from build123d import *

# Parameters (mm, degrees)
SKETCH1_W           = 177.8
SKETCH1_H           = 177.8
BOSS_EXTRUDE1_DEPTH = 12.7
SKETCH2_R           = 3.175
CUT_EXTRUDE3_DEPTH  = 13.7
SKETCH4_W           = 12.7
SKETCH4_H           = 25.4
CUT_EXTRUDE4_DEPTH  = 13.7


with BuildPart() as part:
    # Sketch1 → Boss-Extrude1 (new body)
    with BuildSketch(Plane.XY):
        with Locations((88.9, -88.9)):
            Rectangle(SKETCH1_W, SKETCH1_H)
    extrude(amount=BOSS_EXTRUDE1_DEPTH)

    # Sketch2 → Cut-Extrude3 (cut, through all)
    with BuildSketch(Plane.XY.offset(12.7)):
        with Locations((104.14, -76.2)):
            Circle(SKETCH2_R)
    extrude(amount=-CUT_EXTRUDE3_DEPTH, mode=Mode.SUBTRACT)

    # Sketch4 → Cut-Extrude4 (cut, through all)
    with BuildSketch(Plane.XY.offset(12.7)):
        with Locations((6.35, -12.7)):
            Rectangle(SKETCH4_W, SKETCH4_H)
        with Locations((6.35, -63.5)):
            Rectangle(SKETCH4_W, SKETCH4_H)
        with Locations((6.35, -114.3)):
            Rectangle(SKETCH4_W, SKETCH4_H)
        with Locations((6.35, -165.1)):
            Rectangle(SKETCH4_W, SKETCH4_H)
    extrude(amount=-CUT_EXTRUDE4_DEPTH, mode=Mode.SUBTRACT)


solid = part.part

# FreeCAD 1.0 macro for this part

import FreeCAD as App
import Part
import Sketcher

V = App.Vector
Q = App.Units.Quantity

doc = App.newDocument("Part")
body = doc.addObject("PartDesign::Body", "Body")

sketch1 = doc.addObject("Sketcher::SketchObject", "Sketch")
body.addObject(sketch1)
sketch1.AttachmentSupport = (doc.XY_Plane, [""])
sketch1.MapMode = "FlatFace"
sketch1.addGeometry([
    Part.LineSegment(V(0, 0, 0), V(0, -178, 0)),
    Part.LineSegment(V(0, -178, 0), V(178, -178, 0)),
    Part.LineSegment(V(178, -178, 0), V(178, 0, 0)),
    Part.LineSegment(V(178, 0, 0), V(0, 0, 0)),
], False)
sketch1.addConstraint([
    Sketcher.Constraint("Coincident", 0, 2, 1, 1),
    Sketcher.Constraint("Coincident", 1, 2, 2, 1),
    Sketcher.Constraint("Coincident", 2, 2, 3, 1),
    Sketcher.Constraint("Coincident", 3, 2, 0, 1),
    Sketcher.Constraint("Vertical", 0),
    Sketcher.Constraint("Horizontal", 1),
    Sketcher.Constraint("Vertical", 2),
    Sketcher.Constraint("Horizontal", 3),
    Sketcher.Constraint("Coincident", 3, 2, -1, 1),
    Sketcher.Constraint("Equal", 3, 0),
    Sketcher.Constraint("DistanceX", 1, 1, 1, 2, Q("7 in")),
])
pad1 = doc.addObject("PartDesign::Pad", "Pad")
body.addObject(pad1)
pad1.Profile = sketch1
pad1.Length = Q("0.5 in")

sketch2 = doc.addObject("Sketcher::SketchObject", "Sketch001")
body.addObject(sketch2)
sketch2.AttachmentSupport = (doc.XY_Plane, [""])
sketch2.MapMode = "FlatFace"
sketch2.AttachmentOffset = App.Placement(V(0, 0, 0.5 * 25.4), App.Rotation())
sketch2.addGeometry(Part.Circle(V(104.1, -76.2, 0), V(0, 0, 1), 3.2), False)
sketch2.addConstraint([
    Sketcher.Constraint("Diameter", 0, Q("0.25 in")),
    Sketcher.Constraint("DistanceY", 0, 3, -1, 1, Q("3 in")),
    Sketcher.Constraint("DistanceX", -1, 1, 0, 3, Q("4.1 in")),
])
pocket1 = doc.addObject("PartDesign::Pocket", "Pocket")
body.addObject(pocket1)
pocket1.Profile = sketch2
pocket1.Type = "ThroughAll"

sketch3 = doc.addObject("Sketcher::SketchObject", "Sketch002")
body.addObject(sketch3)
sketch3.AttachmentSupport = (doc.XY_Plane, [""])
sketch3.MapMode = "FlatFace"
sketch3.AttachmentOffset = App.Placement(V(0, 0, 0.5 * 25.4), App.Rotation())
sketch3.addGeometry([
    Part.LineSegment(V(0, 0, 0), V(0, -25, 0)),
    Part.LineSegment(V(0, -25, 0), V(13, -25, 0)),
    Part.LineSegment(V(13, -25, 0), V(13, 0, 0)),
    Part.LineSegment(V(13, 0, 0), V(0, 0, 0)),
    Part.LineSegment(V(0, -51, 0), V(0, -76, 0)),
    Part.LineSegment(V(0, -76, 0), V(13, -76, 0)),
    Part.LineSegment(V(13, -76, 0), V(13, -51, 0)),
    Part.LineSegment(V(13, -51, 0), V(0, -51, 0)),
    Part.LineSegment(V(0, -102, 0), V(0, -127, 0)),
    Part.LineSegment(V(0, -127, 0), V(13, -127, 0)),
    Part.LineSegment(V(13, -127, 0), V(13, -102, 0)),
    Part.LineSegment(V(13, -102, 0), V(0, -102, 0)),
    Part.LineSegment(V(0, -152, 0), V(0, -178, 0)),
    Part.LineSegment(V(0, -178, 0), V(13, -178, 0)),
    Part.LineSegment(V(13, -178, 0), V(13, -152, 0)),
    Part.LineSegment(V(13, -152, 0), V(0, -152, 0)),
], False)
sketch3.addConstraint([
    Sketcher.Constraint("Coincident", 0, 2, 1, 1),
    Sketcher.Constraint("Coincident", 1, 2, 2, 1),
    Sketcher.Constraint("Coincident", 2, 2, 3, 1),
    Sketcher.Constraint("Coincident", 3, 2, 0, 1),
    Sketcher.Constraint("Coincident", 4, 2, 5, 1),
    Sketcher.Constraint("Coincident", 5, 2, 6, 1),
    Sketcher.Constraint("Coincident", 6, 2, 7, 1),
    Sketcher.Constraint("Coincident", 7, 2, 4, 1),
    Sketcher.Constraint("Coincident", 8, 2, 9, 1),
    Sketcher.Constraint("Coincident", 9, 2, 10, 1),
    Sketcher.Constraint("Coincident", 10, 2, 11, 1),
    Sketcher.Constraint("Coincident", 11, 2, 8, 1),
    Sketcher.Constraint("Coincident", 12, 2, 13, 1),
    Sketcher.Constraint("Coincident", 13, 2, 14, 1),
    Sketcher.Constraint("Coincident", 14, 2, 15, 1),
    Sketcher.Constraint("Coincident", 15, 2, 12, 1),
    Sketcher.Constraint("Vertical", 0),
    Sketcher.Constraint("Horizontal", 1),
    Sketcher.Constraint("Vertical", 2),
    Sketcher.Constraint("Horizontal", 3),
    Sketcher.Constraint("Vertical", 4),
    Sketcher.Constraint("Horizontal", 5),
    Sketcher.Constraint("Vertical", 6),
    Sketcher.Constraint("Horizontal", 7),
    Sketcher.Constraint("Vertical", 8),
    Sketcher.Constraint("Horizontal", 9),
    Sketcher.Constraint("Vertical", 10),
    Sketcher.Constraint("Horizontal", 11),
    Sketcher.Constraint("Vertical", 12),
    Sketcher.Constraint("Horizontal", 13),
    Sketcher.Constraint("Vertical", 14),
    Sketcher.Constraint("Horizontal", 15),
    Sketcher.Constraint("Coincident", 3, 2, -1, 1),
    Sketcher.Constraint("PointOnObject", 4, 2, -2),
    Sketcher.Constraint("PointOnObject", 8, 2, -2),
    Sketcher.Constraint("PointOnObject", 12, 2, -2),
    Sketcher.Constraint("Vertical", 2, 2, 5, 2),
    Sketcher.Constraint("Vertical", 6, 2, 9, 2),
    Sketcher.Constraint("Vertical", 10, 2, 13, 2),
    Sketcher.Constraint("Equal", 2, 4),
    Sketcher.Constraint("Equal", 6, 8),
    Sketcher.Constraint("Equal", 10, 12),
    Sketcher.Constraint("DistanceY", 0, 2, 0, 1, Q("1 in")),
    Sketcher.Constraint("DistanceX", 1, 1, 1, 2, Q("0.5 in")),
    Sketcher.Constraint("DistanceY", 4, 2, -1, 1, Q("3 in")),
    Sketcher.Constraint("DistanceY", 8, 2, -1, 1, Q("5 in")),
    Sketcher.Constraint("DistanceY", 12, 2, -1, 1, Q("7 in")),
])
pocket2 = doc.addObject("PartDesign::Pocket", "Pocket001")
body.addObject(pocket2)
pocket2.Profile = sketch3
pocket2.Type = "ThroughAll"

doc.recompute()
